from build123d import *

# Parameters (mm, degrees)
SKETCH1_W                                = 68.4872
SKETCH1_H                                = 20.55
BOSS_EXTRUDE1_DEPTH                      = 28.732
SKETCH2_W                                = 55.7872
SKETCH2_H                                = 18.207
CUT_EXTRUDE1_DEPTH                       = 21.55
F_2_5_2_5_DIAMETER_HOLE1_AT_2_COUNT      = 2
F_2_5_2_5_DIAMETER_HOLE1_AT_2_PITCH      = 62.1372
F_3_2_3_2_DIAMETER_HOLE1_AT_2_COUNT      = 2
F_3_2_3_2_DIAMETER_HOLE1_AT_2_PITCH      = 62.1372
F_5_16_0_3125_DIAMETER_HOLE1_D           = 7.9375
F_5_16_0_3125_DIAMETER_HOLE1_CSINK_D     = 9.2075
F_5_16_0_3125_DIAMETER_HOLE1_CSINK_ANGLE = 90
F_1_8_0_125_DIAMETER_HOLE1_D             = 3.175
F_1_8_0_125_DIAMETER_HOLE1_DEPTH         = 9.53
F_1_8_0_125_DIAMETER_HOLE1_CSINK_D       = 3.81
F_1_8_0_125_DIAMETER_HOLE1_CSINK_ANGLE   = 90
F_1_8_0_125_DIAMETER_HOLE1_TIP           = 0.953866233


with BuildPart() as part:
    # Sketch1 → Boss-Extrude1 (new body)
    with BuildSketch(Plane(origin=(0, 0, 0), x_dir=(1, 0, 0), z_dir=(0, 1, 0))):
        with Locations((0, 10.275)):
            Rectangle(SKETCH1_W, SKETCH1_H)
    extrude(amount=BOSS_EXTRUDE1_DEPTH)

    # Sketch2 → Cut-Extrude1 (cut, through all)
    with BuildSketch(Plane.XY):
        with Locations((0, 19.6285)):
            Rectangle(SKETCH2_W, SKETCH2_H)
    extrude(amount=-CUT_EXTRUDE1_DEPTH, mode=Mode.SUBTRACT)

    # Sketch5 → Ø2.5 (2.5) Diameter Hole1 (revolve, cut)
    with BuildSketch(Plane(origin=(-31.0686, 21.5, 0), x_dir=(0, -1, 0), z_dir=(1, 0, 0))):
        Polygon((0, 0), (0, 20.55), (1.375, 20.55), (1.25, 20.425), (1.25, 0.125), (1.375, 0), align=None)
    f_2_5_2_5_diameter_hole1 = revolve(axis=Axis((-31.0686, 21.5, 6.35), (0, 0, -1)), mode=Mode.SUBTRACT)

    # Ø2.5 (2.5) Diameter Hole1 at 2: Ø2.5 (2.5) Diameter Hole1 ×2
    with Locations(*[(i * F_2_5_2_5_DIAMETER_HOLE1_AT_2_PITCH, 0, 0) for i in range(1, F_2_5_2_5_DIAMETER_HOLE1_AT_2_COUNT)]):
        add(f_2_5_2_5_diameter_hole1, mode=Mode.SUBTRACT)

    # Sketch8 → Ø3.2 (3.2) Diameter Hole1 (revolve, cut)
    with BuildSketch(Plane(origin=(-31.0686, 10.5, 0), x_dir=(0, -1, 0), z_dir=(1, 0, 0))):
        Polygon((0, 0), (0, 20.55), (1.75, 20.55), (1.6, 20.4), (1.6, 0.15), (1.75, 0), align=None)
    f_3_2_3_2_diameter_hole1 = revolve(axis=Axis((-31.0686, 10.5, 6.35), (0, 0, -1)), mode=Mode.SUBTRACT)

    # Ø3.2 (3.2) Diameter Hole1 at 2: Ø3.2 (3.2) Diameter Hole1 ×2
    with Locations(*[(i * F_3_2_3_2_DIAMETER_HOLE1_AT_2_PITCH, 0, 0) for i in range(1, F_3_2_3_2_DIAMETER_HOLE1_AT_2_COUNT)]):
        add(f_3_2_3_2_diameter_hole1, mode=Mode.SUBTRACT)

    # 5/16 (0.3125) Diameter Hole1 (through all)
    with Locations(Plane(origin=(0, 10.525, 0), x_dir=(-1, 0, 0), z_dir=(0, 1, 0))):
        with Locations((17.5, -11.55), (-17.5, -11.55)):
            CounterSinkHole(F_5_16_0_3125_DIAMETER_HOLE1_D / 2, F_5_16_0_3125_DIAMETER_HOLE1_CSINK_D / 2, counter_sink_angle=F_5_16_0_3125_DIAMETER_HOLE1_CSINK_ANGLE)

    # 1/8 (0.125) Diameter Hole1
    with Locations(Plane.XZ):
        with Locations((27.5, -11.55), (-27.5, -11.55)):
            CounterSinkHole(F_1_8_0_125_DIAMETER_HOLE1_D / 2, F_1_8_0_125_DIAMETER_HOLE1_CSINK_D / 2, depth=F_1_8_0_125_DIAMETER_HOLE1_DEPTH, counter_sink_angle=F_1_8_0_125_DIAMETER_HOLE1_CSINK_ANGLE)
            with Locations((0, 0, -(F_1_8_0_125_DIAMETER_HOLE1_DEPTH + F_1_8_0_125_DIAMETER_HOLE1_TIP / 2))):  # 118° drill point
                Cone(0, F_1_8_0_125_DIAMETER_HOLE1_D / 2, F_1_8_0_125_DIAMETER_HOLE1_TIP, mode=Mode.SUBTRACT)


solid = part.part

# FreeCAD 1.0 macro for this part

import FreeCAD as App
import Part
import Sketcher
Q = App.Units.Quantity

doc = App.newDocument("Part")
body = doc.addObject("PartDesign::Body", "Body")

# Sketch on XZ plane
sketch1 = doc.addObject("Sketcher::SketchObject", "Sketch")
body.addObject(sketch1)
sketch1.AttachmentSupport = (doc.XZ_Plane, [""])
sketch1.MapMode = "FlatFace"
sketch1.addGeometry([
    Part.LineSegment(App.Vector(-34, -21, 0), App.Vector(-34, 0, 0)),
    Part.LineSegment(App.Vector(-34, 0, 0), App.Vector(34, 0, 0)),
    Part.LineSegment(App.Vector(34, 0, 0), App.Vector(34, -21, 0)),
    Part.LineSegment(App.Vector(34, -21, 0), App.Vector(-34, -21, 0)),
], False)
sketch1.addConstraint([
    Sketcher.Constraint("Coincident", 0, 2, 1, 1),
    Sketcher.Constraint("Coincident", 1, 2, 2, 1),
    Sketcher.Constraint("Coincident", 2, 2, 3, 1),
    Sketcher.Constraint("Coincident", 3, 2, 0, 1),
    Sketcher.Constraint("Vertical", 0),
    Sketcher.Constraint("Horizontal", 1),
    Sketcher.Constraint("Vertical", 2),
    Sketcher.Constraint("Horizontal", 3),
    Sketcher.Constraint("Symmetric", 0, 2, 1, 2, -1, 1),
    Sketcher.Constraint("DistanceX", 1, 1, 1, 2, 68.4872),
    Sketcher.Constraint("DistanceY", 0, 1, 0, 2, 20.55),
])
pad1 = doc.addObject("PartDesign::Pad", "Pad")
body.addObject(pad1)
pad1.Profile = sketch1
pad1.Length = 28.732
pad1.Reversed = True

# Sketch on XY plane
sketch2 = doc.addObject("Sketcher::SketchObject", "Sketch001")
body.addObject(sketch2)
sketch2.AttachmentSupport = (doc.XY_Plane, [""])
sketch2.MapMode = "FlatFace"
sketch2.addGeometry([
    Part.LineSegment(App.Vector(-28, 29, 0), App.Vector(-28, 11, 0)),
    Part.LineSegment(App.Vector(-28, 11, 0), App.Vector(28, 11, 0)),
    Part.LineSegment(App.Vector(28, 11, 0), App.Vector(28, 29, 0)),
    Part.LineSegment(App.Vector(28, 29, 0), App.Vector(-28, 29, 0)),
], False)
sketch2.addConstraint([
    Sketcher.Constraint("Coincident", 0, 2, 1, 1),
    Sketcher.Constraint("Coincident", 1, 2, 2, 1),
    Sketcher.Constraint("Coincident", 2, 2, 3, 1),
    Sketcher.Constraint("Coincident", 3, 2, 0, 1),
    Sketcher.Constraint("Vertical", 0),
    Sketcher.Constraint("Horizontal", 1),
    Sketcher.Constraint("Vertical", 2),
    Sketcher.Constraint("Horizontal", 3),
    Sketcher.Constraint("DistanceX", 1, 1, 1, 2, 55.7872),
    Sketcher.Constraint("DistanceY", 0, 2, 0, 1, 18.207),
    Sketcher.Constraint("DistanceX", 0, 2, -1, 1, 27.8936),
    Sketcher.Constraint("DistanceY", -1, 1, 0, 2, 10.525),
])
pocket1 = doc.addObject("PartDesign::Pocket", "Pocket")
body.addObject(pocket1)
pocket1.Profile = sketch2
pocket1.Type = "ThroughAll"

# Sketch on YZ plane
sketch3 = doc.addObject("Sketcher::SketchObject", "Sketch002")
body.addObject(sketch3)
sketch3.AttachmentSupport = (doc.YZ_Plane, [""])
sketch3.MapMode = "FlatFace"
sketch3.AttachmentOffset = App.Placement(App.Vector(0, 0, -31.0686), App.Rotation())
sketch3.addGeometry([
    Part.LineSegment(App.Vector(21.5, -20.55, 0), App.Vector(21.5, 0, 0)),  # 0
    Part.LineSegment(App.Vector(21.5, 0, 0), App.Vector(20.12, 0, 0)),  # 1
    Part.LineSegment(App.Vector(20.12, 0, 0), App.Vector(20.25, -0.12, 0)),  # 2
    Part.LineSegment(App.Vector(20.25, -0.12, 0), App.Vector(20.25, -20.43, 0)),  # 3
    Part.LineSegment(App.Vector(20.25, -20.43, 0), App.Vector(20.12, -20.55, 0)),  # 4
    Part.LineSegment(App.Vector(20.12, -20.55, 0), App.Vector(21.5, -20.55, 0)),  # 5
], False)
sketch3.addGeometry(Part.LineSegment(App.Vector(21.5, 0, 0), App.Vector(21.5, -20.55, 0)), True)  # axis
sketch3.addConstraint([
    Sketcher.Constraint("Coincident", 0, 2, 1, 1),
    Sketcher.Constraint("Coincident", 1, 2, 2, 1),
    Sketcher.Constraint("Coincident", 2, 2, 3, 1),
    Sketcher.Constraint("Coincident", 3, 2, 4, 1),
    Sketcher.Constraint("Coincident", 4, 2, 5, 1),
    Sketcher.Constraint("Coincident", 5, 2, 0, 1),
    Sketcher.Constraint("Vertical", 0),
    Sketcher.Constraint("Horizontal", 1),
    Sketcher.Constraint("Vertical", 3),
    Sketcher.Constraint("Horizontal", 5),
    Sketcher.Constraint("Vertical", 6),
    Sketcher.Constraint("Coincident", 6, 1, 0, 2),
    Sketcher.Constraint("PointOnObject", 0, 2, -1),
    Sketcher.Constraint("Perpendicular", 2, 4),
    Sketcher.Constraint("Horizontal", 4, 2, 6, 2),
    Sketcher.Constraint("Vertical", 1, 2, 4, 2),
    Sketcher.Constraint("Equal", 2, 4),
    Sketcher.Constraint("DistanceX", 1, 2, 1, 1, 1.375),
    Sketcher.Constraint("DistanceY", 0, 1, 0, 2, 20.55),
    Sketcher.Constraint("DistanceY", 3, 2, 3, 1, 20.3),
    Sketcher.Constraint("DistanceX", -1, 1, 0, 2, 21.5),
])
groove = doc.addObject("PartDesign::Groove", "Groove")
body.addObject(groove)
groove.Profile = sketch3
groove.ReferenceAxis = (sketch3, ["Axis0"])
groove.Angle = 360
doc.recompute()

linearpattern = doc.addObject("PartDesign::LinearPattern", "LinearPattern")
body.addObject(linearpattern)
linearpattern.Originals = [groove]
linearpattern.Direction = (doc.X_Axis, [""])
linearpattern.Mode = "offset"
linearpattern.Offset = 62.1372
linearpattern.Occurrences = 2
body.Tip = linearpattern

# Sketch on YZ plane
sketch4 = doc.addObject("Sketcher::SketchObject", "Sketch003")
body.addObject(sketch4)
sketch4.AttachmentSupport = (doc.YZ_Plane, [""])
sketch4.MapMode = "FlatFace"
sketch4.AttachmentOffset = App.Placement(App.Vector(0, 0, -31.0686), App.Rotation())
sketch4.addGeometry([
    Part.LineSegment(App.Vector(10.5, -20.55, 0), App.Vector(10.5, 0, 0)),  # 0
    Part.LineSegment(App.Vector(10.5, 0, 0), App.Vector(8.75, 0, 0)),  # 1
    Part.LineSegment(App.Vector(8.75, 0, 0), App.Vector(8.9, -0.15, 0)),  # 2
    Part.LineSegment(App.Vector(8.9, -0.15, 0), App.Vector(8.9, -20.4, 0)),  # 3
    Part.LineSegment(App.Vector(8.9, -20.4, 0), App.Vector(8.75, -20.55, 0)),  # 4
    Part.LineSegment(App.Vector(8.75, -20.55, 0), App.Vector(10.5, -20.55, 0)),  # 5
], False)
sketch4.addGeometry(Part.LineSegment(App.Vector(10.5, 0, 0), App.Vector(10.5, -20.55, 0)), True)  # axis
sketch4.addConstraint([
    Sketcher.Constraint("Coincident", 0, 2, 1, 1),
    Sketcher.Constraint("Coincident", 1, 2, 2, 1),
    Sketcher.Constraint("Coincident", 2, 2, 3, 1),
    Sketcher.Constraint("Coincident", 3, 2, 4, 1),
    Sketcher.Constraint("Coincident", 4, 2, 5, 1),
    Sketcher.Constraint("Coincident", 5, 2, 0, 1),
    Sketcher.Constraint("Vertical", 0),
    Sketcher.Constraint("Horizontal", 1),
    Sketcher.Constraint("Vertical", 3),
    Sketcher.Constraint("Horizontal", 5),
    Sketcher.Constraint("Vertical", 6),
    Sketcher.Constraint("Coincident", 6, 1, 0, 2),
    Sketcher.Constraint("PointOnObject", 0, 2, -1),
    Sketcher.Constraint("Perpendicular", 2, 4),
    Sketcher.Constraint("Horizontal", 4, 2, 6, 2),
    Sketcher.Constraint("Vertical", 1, 2, 4, 2),
    Sketcher.Constraint("Equal", 2, 4),
    Sketcher.Constraint("DistanceX", 1, 2, 1, 1, 1.75),
    Sketcher.Constraint("DistanceY", 0, 1, 0, 2, 20.55),
    Sketcher.Constraint("DistanceY", 3, 2, 3, 1, 20.25),
    Sketcher.Constraint("DistanceX", -1, 1, 0, 2, 10.5),
])
groove2 = doc.addObject("PartDesign::Groove", "Groove001")
body.addObject(groove2)
groove2.Profile = sketch4
groove2.ReferenceAxis = (sketch4, ["Axis0"])
groove2.Angle = 360
doc.recompute()

linearpattern2 = doc.addObject("PartDesign::LinearPattern", "LinearPattern001")
body.addObject(linearpattern2)
linearpattern2.Originals = [groove2]
linearpattern2.Direction = (doc.X_Axis, [""])
linearpattern2.Mode = "offset"
linearpattern2.Offset = 62.1372
linearpattern2.Occurrences = 2
body.Tip = linearpattern2

# Sketch on XZ plane
sketch5 = doc.addObject("Sketcher::SketchObject", "Sketch004")
body.addObject(sketch5)
sketch5.AttachmentSupport = (doc.XZ_Plane, [""])
sketch5.MapMode = "FlatFace"
sketch5.AttachmentOffset = App.Placement(App.Vector(0, 0, -10.525), App.Rotation())
sketch5.addGeometry([
    Part.Circle(App.Vector(-17.5, -11.6, 0), App.Vector(0, 0, 1), 4),
    Part.Circle(App.Vector(17.5, -11.6, 0), App.Vector(0, 0, 1), 4),
], False)
sketch5.addConstraint([
    Sketcher.Constraint("Equal", 0, 1),
    Sketcher.Constraint("Symmetric", 0, 3, 1, 3, -2),
    Sketcher.Constraint("Diameter", 0, Q("0.3125 in")),
    Sketcher.Constraint("DistanceX", 0, 3, -1, 1, 17.5),
    Sketcher.Constraint("DistanceY", 0, 3, -1, 1, 11.55),
])
doc.recompute()
hole = doc.addObject("PartDesign::Hole", "Hole")
body.addObject(hole)
hole.Profile = sketch5
hole.ThreadType = "None"
hole.Diameter = Q("0.3125 in")
hole.DepthType = "ThroughAll"
hole.HoleCutType = "Countersink"
hole.HoleCutDiameter = Q("0.3625 in")
hole.HoleCutCountersinkAngle = 90
hole.Reversed = True

# Sketch on XZ plane
sketch6 = doc.addObject("Sketcher::SketchObject", "Sketch005")
body.addObject(sketch6)
sketch6.AttachmentSupport = (doc.XZ_Plane, [""])
sketch6.MapMode = "FlatFace"
sketch6.addGeometry([
    Part.Circle(App.Vector(27.5, -11.6, 0), App.Vector(0, 0, 1), 1.6),
    Part.Circle(App.Vector(-27.5, -11.6, 0), App.Vector(0, 0, 1), 1.6),
], False)
sketch6.addConstraint([
    Sketcher.Constraint("Equal", 0, 1),
    Sketcher.Constraint("Symmetric", 0, 3, 1, 3, -2),
    Sketcher.Constraint("Diameter", 0, Q("0.125 in")),
    Sketcher.Constraint("DistanceX", -1, 1, 0, 3, 27.5),
    Sketcher.Constraint("DistanceY", 0, 3, -1, 1, 11.55),
])
doc.recompute()
hole2 = doc.addObject("PartDesign::Hole", "Hole001")
body.addObject(hole2)
hole2.Profile = sketch6
hole2.ThreadType = "None"
hole2.Diameter = Q("0.125 in")
hole2.DepthType = "Dimension"
hole2.Depth = 9.53
hole2.DrillPoint = "Angled"
hole2.DrillPointAngle = 118
hole2.HoleCutType = "Countersink"
hole2.HoleCutDiameter = Q("0.15 in")
hole2.HoleCutCountersinkAngle = 90

doc.recompute()
